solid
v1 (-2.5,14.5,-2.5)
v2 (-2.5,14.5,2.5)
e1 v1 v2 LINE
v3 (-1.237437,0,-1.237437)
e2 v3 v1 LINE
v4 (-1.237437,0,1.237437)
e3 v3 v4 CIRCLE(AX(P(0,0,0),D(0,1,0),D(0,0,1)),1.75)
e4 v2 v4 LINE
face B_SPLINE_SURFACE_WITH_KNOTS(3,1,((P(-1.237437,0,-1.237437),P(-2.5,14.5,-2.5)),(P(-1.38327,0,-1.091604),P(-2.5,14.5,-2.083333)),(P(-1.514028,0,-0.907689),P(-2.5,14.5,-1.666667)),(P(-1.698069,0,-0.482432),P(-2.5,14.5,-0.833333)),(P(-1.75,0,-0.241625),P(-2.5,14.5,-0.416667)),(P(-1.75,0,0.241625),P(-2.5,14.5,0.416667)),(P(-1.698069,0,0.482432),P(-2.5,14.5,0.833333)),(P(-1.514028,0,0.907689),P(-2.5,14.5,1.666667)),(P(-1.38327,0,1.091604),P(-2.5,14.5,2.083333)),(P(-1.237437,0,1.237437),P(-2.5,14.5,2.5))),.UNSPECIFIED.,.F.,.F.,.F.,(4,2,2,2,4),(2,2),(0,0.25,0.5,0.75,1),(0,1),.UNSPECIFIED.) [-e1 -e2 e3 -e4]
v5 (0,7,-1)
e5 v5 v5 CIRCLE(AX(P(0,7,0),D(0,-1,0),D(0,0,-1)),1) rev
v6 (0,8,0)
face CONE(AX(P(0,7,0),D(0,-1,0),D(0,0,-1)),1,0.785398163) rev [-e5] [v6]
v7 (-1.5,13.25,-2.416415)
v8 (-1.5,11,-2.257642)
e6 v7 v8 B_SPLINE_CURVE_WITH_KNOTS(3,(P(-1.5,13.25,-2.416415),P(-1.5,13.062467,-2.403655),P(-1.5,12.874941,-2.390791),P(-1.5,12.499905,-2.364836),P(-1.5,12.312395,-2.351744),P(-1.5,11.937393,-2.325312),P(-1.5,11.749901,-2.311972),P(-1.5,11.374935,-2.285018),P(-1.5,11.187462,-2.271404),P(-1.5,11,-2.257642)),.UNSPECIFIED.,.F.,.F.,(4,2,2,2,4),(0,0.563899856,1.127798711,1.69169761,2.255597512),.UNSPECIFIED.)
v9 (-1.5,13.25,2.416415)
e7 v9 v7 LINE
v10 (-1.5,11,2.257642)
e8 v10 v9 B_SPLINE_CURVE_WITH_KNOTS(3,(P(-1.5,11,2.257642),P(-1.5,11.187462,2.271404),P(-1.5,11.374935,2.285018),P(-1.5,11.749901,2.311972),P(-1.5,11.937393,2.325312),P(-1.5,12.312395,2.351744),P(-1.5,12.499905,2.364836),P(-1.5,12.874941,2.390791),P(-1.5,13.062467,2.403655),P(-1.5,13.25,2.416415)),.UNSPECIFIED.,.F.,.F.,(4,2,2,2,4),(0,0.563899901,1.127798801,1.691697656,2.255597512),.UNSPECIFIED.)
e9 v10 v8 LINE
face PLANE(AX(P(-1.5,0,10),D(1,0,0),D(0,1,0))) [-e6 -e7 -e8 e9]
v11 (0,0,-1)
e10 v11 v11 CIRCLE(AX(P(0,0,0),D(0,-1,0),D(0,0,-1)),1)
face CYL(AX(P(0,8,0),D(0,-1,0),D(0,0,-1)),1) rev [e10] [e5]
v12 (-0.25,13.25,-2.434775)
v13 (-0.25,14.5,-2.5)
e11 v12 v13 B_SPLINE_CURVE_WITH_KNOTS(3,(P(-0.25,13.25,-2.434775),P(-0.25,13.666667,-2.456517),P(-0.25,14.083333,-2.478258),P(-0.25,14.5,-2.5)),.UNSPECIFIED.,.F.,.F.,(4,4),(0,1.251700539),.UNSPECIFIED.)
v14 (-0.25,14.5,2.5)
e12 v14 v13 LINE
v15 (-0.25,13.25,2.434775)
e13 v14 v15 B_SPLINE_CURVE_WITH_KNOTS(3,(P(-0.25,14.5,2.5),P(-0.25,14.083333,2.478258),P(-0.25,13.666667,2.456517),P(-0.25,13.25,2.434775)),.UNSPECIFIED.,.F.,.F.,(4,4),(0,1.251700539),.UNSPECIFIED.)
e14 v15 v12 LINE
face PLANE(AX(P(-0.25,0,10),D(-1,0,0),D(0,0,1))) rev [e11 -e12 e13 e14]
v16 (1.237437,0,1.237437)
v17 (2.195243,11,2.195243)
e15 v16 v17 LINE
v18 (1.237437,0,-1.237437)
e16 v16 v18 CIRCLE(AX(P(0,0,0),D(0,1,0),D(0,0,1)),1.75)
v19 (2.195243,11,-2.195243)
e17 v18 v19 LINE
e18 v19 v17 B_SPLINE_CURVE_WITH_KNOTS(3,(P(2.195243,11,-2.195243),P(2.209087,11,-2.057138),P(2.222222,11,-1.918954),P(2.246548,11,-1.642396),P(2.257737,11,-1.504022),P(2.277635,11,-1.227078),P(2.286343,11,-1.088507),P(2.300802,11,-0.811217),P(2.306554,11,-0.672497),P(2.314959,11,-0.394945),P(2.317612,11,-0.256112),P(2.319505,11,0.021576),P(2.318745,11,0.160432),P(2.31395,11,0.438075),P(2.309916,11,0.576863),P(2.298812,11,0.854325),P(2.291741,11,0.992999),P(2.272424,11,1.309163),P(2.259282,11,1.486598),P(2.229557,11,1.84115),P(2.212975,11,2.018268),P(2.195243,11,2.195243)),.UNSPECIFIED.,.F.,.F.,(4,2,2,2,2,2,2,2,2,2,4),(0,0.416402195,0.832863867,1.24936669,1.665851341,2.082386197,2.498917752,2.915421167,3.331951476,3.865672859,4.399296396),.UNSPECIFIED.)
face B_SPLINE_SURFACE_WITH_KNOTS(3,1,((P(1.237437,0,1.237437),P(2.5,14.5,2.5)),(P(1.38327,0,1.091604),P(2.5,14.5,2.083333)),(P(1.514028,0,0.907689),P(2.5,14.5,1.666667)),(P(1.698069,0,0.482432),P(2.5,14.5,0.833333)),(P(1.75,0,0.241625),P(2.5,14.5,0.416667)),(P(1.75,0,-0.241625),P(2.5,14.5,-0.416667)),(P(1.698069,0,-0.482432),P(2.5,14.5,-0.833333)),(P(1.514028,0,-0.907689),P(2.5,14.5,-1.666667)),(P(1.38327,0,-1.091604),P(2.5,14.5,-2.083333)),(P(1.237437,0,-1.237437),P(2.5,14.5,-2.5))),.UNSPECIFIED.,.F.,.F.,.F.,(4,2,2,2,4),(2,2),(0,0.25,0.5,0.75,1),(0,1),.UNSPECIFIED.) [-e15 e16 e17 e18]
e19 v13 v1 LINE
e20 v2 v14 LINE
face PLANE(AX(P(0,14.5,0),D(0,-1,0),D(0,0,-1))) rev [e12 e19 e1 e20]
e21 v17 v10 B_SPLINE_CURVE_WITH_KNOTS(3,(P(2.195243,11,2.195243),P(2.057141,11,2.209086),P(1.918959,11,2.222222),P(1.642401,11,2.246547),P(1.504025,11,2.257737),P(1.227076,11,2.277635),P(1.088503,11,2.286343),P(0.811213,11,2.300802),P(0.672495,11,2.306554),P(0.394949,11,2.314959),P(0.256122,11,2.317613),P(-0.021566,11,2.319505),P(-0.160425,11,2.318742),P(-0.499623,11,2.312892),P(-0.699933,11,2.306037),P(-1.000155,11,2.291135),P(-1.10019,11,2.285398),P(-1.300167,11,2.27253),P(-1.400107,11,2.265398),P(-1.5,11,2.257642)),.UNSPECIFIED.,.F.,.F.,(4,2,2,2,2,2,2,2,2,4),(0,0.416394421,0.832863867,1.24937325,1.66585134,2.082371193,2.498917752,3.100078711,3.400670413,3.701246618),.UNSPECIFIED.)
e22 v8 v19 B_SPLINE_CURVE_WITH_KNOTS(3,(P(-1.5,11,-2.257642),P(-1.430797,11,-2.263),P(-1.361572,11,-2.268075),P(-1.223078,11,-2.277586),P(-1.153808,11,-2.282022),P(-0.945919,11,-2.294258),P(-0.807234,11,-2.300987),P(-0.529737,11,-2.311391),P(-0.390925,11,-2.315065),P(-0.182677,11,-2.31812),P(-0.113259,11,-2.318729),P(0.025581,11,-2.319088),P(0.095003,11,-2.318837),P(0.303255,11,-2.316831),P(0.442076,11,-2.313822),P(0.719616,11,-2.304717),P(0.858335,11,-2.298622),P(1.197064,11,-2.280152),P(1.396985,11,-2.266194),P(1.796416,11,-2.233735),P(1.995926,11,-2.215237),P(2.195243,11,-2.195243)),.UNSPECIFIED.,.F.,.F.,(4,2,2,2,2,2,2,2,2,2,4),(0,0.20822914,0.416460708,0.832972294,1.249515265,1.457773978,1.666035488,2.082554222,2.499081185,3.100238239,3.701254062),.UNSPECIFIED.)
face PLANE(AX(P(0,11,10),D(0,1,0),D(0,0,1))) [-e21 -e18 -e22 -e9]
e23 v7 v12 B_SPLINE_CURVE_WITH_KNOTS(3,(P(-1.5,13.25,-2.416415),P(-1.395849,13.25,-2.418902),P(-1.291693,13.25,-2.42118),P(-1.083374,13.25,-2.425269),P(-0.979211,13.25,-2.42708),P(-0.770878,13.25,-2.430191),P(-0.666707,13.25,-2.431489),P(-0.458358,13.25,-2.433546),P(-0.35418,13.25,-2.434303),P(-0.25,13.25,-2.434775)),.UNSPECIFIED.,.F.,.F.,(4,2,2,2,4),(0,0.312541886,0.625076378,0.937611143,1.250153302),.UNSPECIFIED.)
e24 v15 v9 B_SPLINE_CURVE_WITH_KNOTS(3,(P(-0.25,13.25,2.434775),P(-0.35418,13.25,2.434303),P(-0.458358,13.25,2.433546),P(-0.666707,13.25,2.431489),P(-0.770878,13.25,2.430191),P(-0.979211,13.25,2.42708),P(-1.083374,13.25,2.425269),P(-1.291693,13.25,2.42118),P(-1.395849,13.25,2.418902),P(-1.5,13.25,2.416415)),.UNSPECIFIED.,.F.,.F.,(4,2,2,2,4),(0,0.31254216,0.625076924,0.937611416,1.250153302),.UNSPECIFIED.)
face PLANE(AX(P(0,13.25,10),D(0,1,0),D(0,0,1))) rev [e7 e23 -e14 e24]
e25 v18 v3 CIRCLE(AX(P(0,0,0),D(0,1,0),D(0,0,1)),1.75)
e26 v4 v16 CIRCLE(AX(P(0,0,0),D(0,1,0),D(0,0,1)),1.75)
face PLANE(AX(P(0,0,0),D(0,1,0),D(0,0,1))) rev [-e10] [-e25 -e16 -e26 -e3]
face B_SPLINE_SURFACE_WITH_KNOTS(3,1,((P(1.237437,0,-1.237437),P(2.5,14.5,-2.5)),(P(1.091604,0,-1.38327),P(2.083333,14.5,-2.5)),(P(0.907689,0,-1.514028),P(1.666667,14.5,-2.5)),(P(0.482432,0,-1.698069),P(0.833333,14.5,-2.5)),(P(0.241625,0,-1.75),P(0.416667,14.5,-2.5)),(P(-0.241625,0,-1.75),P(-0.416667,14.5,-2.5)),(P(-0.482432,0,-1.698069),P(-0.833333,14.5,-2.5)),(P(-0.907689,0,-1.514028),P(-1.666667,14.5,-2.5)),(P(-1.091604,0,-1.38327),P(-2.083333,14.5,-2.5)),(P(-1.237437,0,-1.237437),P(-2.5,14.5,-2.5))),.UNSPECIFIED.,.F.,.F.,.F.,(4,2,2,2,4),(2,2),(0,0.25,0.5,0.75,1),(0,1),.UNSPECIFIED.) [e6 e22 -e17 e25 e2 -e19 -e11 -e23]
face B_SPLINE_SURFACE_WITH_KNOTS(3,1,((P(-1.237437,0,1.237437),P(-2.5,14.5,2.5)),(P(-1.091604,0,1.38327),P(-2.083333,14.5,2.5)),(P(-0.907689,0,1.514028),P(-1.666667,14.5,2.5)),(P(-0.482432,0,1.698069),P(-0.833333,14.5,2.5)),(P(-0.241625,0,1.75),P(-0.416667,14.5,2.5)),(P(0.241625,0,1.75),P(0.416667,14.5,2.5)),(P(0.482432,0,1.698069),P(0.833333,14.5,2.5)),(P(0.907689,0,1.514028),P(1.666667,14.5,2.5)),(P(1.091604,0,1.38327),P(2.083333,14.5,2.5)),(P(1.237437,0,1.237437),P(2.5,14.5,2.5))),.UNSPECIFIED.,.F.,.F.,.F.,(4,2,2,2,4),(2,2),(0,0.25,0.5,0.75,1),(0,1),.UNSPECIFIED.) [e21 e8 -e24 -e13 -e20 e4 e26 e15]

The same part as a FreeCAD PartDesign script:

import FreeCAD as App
import Part
import Sketcher
from FreeCAD import Vector


def edges_at(feature, points):
    """Names of the edges that pass closest to the given points."""
    edges = feature.Shape.Edges
    near = lambda p: min(range(len(edges)), key=lambda i: edges[i].distToShape(Part.Vertex(*p))[0])
    return sorted({f"Edge{near(p) + 1}" for p in points})

doc = App.newDocument("Part")
params = doc.addObject("Spreadsheet::Sheet", "Params")
for row, (alias, value) in enumerate([
    ("sketch2_width", "5 mm"),
    ("sketch3_width", "1.25 mm"),
    ("sketch3_height", "2.25 mm"),
    ("sketch4_diameter", "2 mm"),
    ("pocket2_length", "8 mm"),
    ("chamfer_size", "1 mm"),
], start=1):
    params.set(f"A{row}", alias)
    params.set(f"B{row}", "=" + value)
    params.setAlias(f"B{row}", alias)

body = doc.addObject("PartDesign::Body", "Body")

# Sketch on XZ plane
sketch1 = body.newObject("Sketcher::SketchObject", "Sketch")
sketch1.AttachmentSupport = (doc.getObject("XZ_Plane"), [""])
sketch1.MapMode = "FlatFace"
sketch1.addGeometry(Part.BSplineCurve([Vector(-1.237437, -1.237437, 0), Vector(-1.587437, -0.887437, 0), Vector(-1.887247, -0.331345, 0), Vector(-1.887247, 0.331345, 0), Vector(-1.587437, 0.887437, 0), Vector(-0.887437, 1.587437, 0), Vector(-0.331345, 1.887247, 0), Vector(0.331345, 1.887247, 0), Vector(0.887437, 1.587437, 0), Vector(1.587437, 0.887437, 0), Vector(1.887247, 0.331345, 0), Vector(1.887247, -0.331345, 0), Vector(1.587437, -0.887437, 0), Vector(0.887437, -1.587437, 0), Vector(0.331345, -1.887247, 0), Vector(-0.331345, -1.887247, 0), Vector(-0.887437, -1.587437, 0), Vector(-1.237437, -1.237437, 0)], [6, 4, 4, 4, 6], [0, 1, 2, 3, 4], False, 5, [1, 1, 0.965685425, 0.965685425, 1, 1, 0.965685425, 0.965685425, 1, 1, 0.965685425, 0.965685425, 1, 1, 0.965685425, 0.965685425, 1, 1], False), False)
sketch1.addConstraint(Sketcher.Constraint("Block", 0))

# Sketch on XZ plane
sketch2 = body.newObject("Sketcher::SketchObject", "Sketch001")
sketch2.AttachmentSupport = (doc.getObject("XZ_Plane"), [""])
sketch2.MapMode = "FlatFace"
sketch2.AttachmentOffset = App.Placement(Vector(0, 0, -14.5), App.Rotation())
sketch2.addGeometry([
    Part.LineSegment(Vector(-2, 2, 0), Vector(2, 2, 0)),
    Part.LineSegment(Vector(2, 2, 0), Vector(2, -2, 0)),
    Part.LineSegment(Vector(2, -2, 0), Vector(-2, -2, 0)),
    Part.LineSegment(Vector(-2, -2, 0), Vector(-2, 2, 0)),
], False)
sketch2.addConstraint([
    Sketcher.Constraint("Coincident", 0, 2, 1, 1),
    Sketcher.Constraint("Coincident", 1, 2, 2, 1),
    Sketcher.Constraint("Coincident", 2, 2, 3, 1),
    Sketcher.Constraint("Coincident", 3, 2, 0, 1),
    Sketcher.Constraint("Horizontal", 0),
    Sketcher.Constraint("Vertical", 1),
    Sketcher.Constraint("Horizontal", 2),
    Sketcher.Constraint("Vertical", 3),
    Sketcher.Constraint("Symmetric", 0, 2, 2, 2, -1, 1),
    Sketcher.Constraint("Equal", 2, 1),
    Sketcher.Constraint("DistanceX", 0, 1, 0, 2, 5.0),
])
sketch2.setExpression("Constraints[10]", "Params.sketch2_width")

additiveloft = body.newObject("PartDesign::AdditiveLoft", "AdditiveLoft")
additiveloft.Profile = sketch1
additiveloft.Sections = [sketch2]

# Sketch on XY plane
sketch3 = body.newObject("Sketcher::SketchObject", "Sketch002")
sketch3.AttachmentSupport = (doc.getObject("XY_Plane"), [""])
sketch3.MapMode = "FlatFace"
sketch3.addGeometry([
    Part.LineSegment(Vector(-0.2, 13.2, 0), Vector(-1.5, 13.2, 0)),  # 0
    Part.LineSegment(Vector(-1.5, 13.2, 0), Vector(-1.5, 11, 0)),  # 1
    Part.LineSegment(Vector(-1.5, 11, 0), Vector(3.2, 11, 0)),  # 2
    Part.LineSegment(Vector(3.2, 11, 0), Vector(3.2, 14.8, 0)),  # 3
    Part.LineSegment(Vector(3.2, 14.8, 0), Vector(-0.2, 14.8, 0)),  # 4
    Part.LineSegment(Vector(-0.2, 14.8, 0), Vector(-0.2, 13.2, 0)),  # 5
], False)
sketch3.addConstraint([
    Sketcher.Constraint("Coincident", 0, 2, 1, 1),
    Sketcher.Constraint("Coincident", 1, 2, 2, 1),
    Sketcher.Constraint("Coincident", 2, 2, 3, 1),
    Sketcher.Constraint("Coincident", 3, 2, 4, 1),
    Sketcher.Constraint("Coincident", 4, 2, 5, 1),
    Sketcher.Constraint("Coincident", 5, 2, 0, 1),
    Sketcher.Constraint("Horizontal", 0),
    Sketcher.Constraint("Vertical", 1),
    Sketcher.Constraint("Horizontal", 2),
    Sketcher.Constraint("Vertical", 3),
    Sketcher.Constraint("Horizontal", 4),
    Sketcher.Constraint("Vertical", 5),
    Sketcher.Constraint("DistanceY", -1, 1, 1, 2, 11.0),
    Sketcher.Constraint("DistanceX", 0, 2, 0, 1, 1.25),
    Sketcher.Constraint("DistanceY", 1, 2, 1, 1, 2.25),
    Sketcher.Constraint("DistanceX", 0, 2, -1, 1, 1.5),
    Sketcher.Constraint("DistanceX", 2, 1, 2, 2, 4.651773),
    Sketcher.Constraint("DistanceY", 3, 1, 3, 2, 3.772898),
])
sketch3.setExpression("Constraints[13]", "Params.sketch3_width")
sketch3.setExpression("Constraints[14]", "Params.sketch3_height")
pocket1 = body.newObject("PartDesign::Pocket", "Pocket")
pocket1.Profile = sketch3
pocket1.Type = "ThroughAll"
pocket1.Midplane = True

# Sketch on XZ plane
sketch4 = body.newObject("Sketcher::SketchObject", "Sketch003")
sketch4.AttachmentSupport = (doc.getObject("XZ_Plane"), [""])
sketch4.MapMode = "FlatFace"
sketch4.addGeometry(Part.Circle(Vector(0, 0, 0), Vector(0, 0, 1), 1), False)
sketch4.addConstraint([
    Sketcher.Constraint("Coincident", 0, 3, -1, 1),
    Sketcher.Constraint("Diameter", 0, 2.0),
])
sketch4.setExpression("Constraints[1]", "Params.sketch4_diameter")
pocket2 = body.newObject("PartDesign::Pocket", "Pocket001")
pocket2.Profile = sketch4
pocket2.setExpression("Length", "Params.pocket2_length")
doc.recompute()

chamfer = body.newObject("PartDesign::Chamfer", "Chamfer")
chamfer.Base = (pocket2, edges_at(pocket2, [(0, 8, 1)]))
chamfer.setExpression("Size", "Params.chamfer_size")

doc.recompute()
